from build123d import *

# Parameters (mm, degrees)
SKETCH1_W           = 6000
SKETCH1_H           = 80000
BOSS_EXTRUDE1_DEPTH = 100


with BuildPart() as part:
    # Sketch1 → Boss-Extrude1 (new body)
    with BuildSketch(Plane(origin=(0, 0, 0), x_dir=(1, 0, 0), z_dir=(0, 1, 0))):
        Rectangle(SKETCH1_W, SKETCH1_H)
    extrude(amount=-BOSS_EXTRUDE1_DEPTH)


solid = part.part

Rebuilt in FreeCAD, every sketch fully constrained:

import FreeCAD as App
import Part
import Sketcher


def add_polygon(sketch, points):
    """Adds a closed chain of lines whose ends are joined by coincident constraints."""
    first, n = sketch.GeometryCount, len(points)
    for a, b in zip(points, points[1:] + points[:1]):
        sketch.addGeometry(Part.LineSegment(App.Vector(*a, 0), App.Vector(*b, 0)), False)
    for i in range(n):
        sketch.addConstraint(Sketcher.Constraint("Coincident", first + i, 2, first + (i + 1) % n, 1))

doc = App.newDocument("Part")
body = doc.addObject("PartDesign::Body", "Body")

sketch1 = doc.addObject("Sketcher::SketchObject", "Sketch")
body.addObject(sketch1)
sketch1.AttachmentSupport = (doc.XZ_Plane, [""])
sketch1.MapMode = "FlatFace"
add_polygon(sketch1, [(-3000, -40000), (-3000, 40000), (3000, 40000), (3000, -40000)])
sketch1.addConstraint([
    Sketcher.Constraint("Vertical", 0),
    Sketcher.Constraint("Horizontal", 1),
    Sketcher.Constraint("Vertical", 2),
    Sketcher.Constraint("Horizontal", 3),
    Sketcher.Constraint("Symmetric", 0, 2, 2, 2, -1, 1),
    Sketcher.Constraint("DistanceX", 1, 1, 1, 2, 6000.0),
    Sketcher.Constraint("DistanceY", 0, 1, 0, 2, 80000.0),
])
pad1 = doc.addObject("PartDesign::Pad", "Pad")
body.addObject(pad1)
pad1.Profile = sketch1
pad1.Length = 100

doc.recompute()
